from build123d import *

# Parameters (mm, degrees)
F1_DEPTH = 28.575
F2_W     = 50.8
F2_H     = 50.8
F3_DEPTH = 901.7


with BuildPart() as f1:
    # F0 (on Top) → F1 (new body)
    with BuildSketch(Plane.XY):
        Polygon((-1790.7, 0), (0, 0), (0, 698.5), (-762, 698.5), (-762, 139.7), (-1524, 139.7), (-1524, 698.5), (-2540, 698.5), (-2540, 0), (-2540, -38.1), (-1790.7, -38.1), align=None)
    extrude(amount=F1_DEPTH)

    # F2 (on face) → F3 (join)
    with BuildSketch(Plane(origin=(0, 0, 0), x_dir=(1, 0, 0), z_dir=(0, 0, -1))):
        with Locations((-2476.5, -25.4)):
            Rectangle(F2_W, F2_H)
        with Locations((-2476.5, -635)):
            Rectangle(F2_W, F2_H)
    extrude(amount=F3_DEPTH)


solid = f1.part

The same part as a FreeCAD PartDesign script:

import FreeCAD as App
import Part
import Sketcher

V = App.Vector
Q = App.Units.Quantity


def add_polygon(sketch, points):
    """Adds a closed chain of lines whose ends are joined by coincident constraints."""
    first, n = sketch.GeometryCount, len(points)
    for a, b in zip(points, points[1:] + points[:1]):
        sketch.addGeometry(Part.LineSegment(App.Vector(*a, 0), App.Vector(*b, 0)), False)
    for i in range(n):
        sketch.addConstraint(Sketcher.Constraint("Coincident", first + i, 2, first + (i + 1) % n, 1))

doc = App.newDocument("Part")
params = doc.addObject("Spreadsheet::Sheet", "Params")
for row, (alias, value) in enumerate([
    ("sketch1_width", "30 in"),
    ("sketch1_width2", "40 in"),
    ("sketch1_height", "22 in"),
    ("sketch1_height2", "29 in"),
    ("sketch1_width3", "70.5 in"),
    ("pad1_length", "1.125 in"),
    ("sketch2_width", "2 in"),
    ("pad2_length", "35.5 in"),
], start=1):
    params.set(f"A{row}", alias)
    params.set(f"B{row}", "=" + value)
    params.setAlias(f"B{row}", alias)

body = doc.addObject("PartDesign::Body", "Body")

# Sketch on XY plane
sketch1 = body.newObject("Sketcher::SketchObject", "Sketch")
sketch1.AttachmentSupport = (doc.getObject("XY_Plane"), [""])
sketch1.MapMode = "FlatFace"
add_polygon(sketch1, [(-1791, 0), (0, 0), (0, 698), (-762, 698), (-762, 140), (-1524, 140), (-1524, 698), (-2540, 698), (-2540, -38), (-1791, -38)])  # lines 0-9
sketch1.addConstraint([
    Sketcher.Constraint("Horizontal", 0),
    Sketcher.Constraint("Vertical", 1),
    Sketcher.Constraint("Horizontal", 2),
    Sketcher.Constraint("Vertical", 3),
    Sketcher.Constraint("Horizontal", 4),
    Sketcher.Constraint("Vertical", 5),
    Sketcher.Constraint("Horizontal", 6),
    Sketcher.Constraint("Vertical", 7),
    Sketcher.Constraint("Horizontal", 8),
    Sketcher.Constraint("Vertical", 9),
    Sketcher.Constraint("Coincident", 0, 2, -1, 1),
    Sketcher.Constraint("Horizontal", 2, 2, 5, 2),
    Sketcher.Constraint("Equal", 2, 4),
    Sketcher.Constraint("DistanceX", 2, 2, 2, 1, Q("30 in")),
    Sketcher.Constraint("DistanceX", 6, 2, 6, 1, Q("40 in")),
    Sketcher.Constraint("DistanceY", 3, 2, 3, 1, Q("22 in")),
    Sketcher.Constraint("DistanceY", 7, 2, 7, 1, Q("29 in")),
    Sketcher.Constraint("DistanceX", 0, 1, 0, 2, Q("70.5 in")),
    Sketcher.Constraint("DistanceY", 1, 1, 1, 2, Q("27.5 in")),
])
sketch1.setExpression("Constraints[23]", "Params.sketch1_width")
sketch1.setExpression("Constraints[24]", "Params.sketch1_width2")
sketch1.setExpression("Constraints[25]", "Params.sketch1_height")
sketch1.setExpression("Constraints[26]", "Params.sketch1_height2")
sketch1.setExpression("Constraints[27]", "Params.sketch1_width3")
pad1 = body.newObject("PartDesign::Pad", "Pad")
pad1.Profile = sketch1
pad1.setExpression("Length", "Params.pad1_length")

# Sketch on XY plane
sketch2 = body.newObject("Sketcher::SketchObject", "Sketch001")
sketch2.AttachmentSupport = (doc.getObject("XY_Plane"), [""])
sketch2.MapMode = "FlatFace"
add_polygon(sketch2, [(-2502, 0), (-2502, 51), (-2451, 51), (-2451, 0)])  # lines 0-3
add_polygon(sketch2, [(-2502, 610), (-2502, 660), (-2451, 660), (-2451, 610)])  # lines 4-7
sketch2.addConstraint([
    Sketcher.Constraint("Vertical", 0),
    Sketcher.Constraint("Horizontal", 1),
    Sketcher.Constraint("Vertical", 2),
    Sketcher.Constraint("Horizontal", 3),
    Sketcher.Constraint("Vertical", 4),
    Sketcher.Constraint("Horizontal", 5),
    Sketcher.Constraint("Vertical", 6),
    Sketcher.Constraint("Horizontal", 7),
    Sketcher.Constraint("PointOnObject", 2, 2, -1),
    Sketcher.Constraint("Vertical", 3, 2, 4, 2),
    Sketcher.Constraint("Vertical", 2, 2, 5, 2),
    Sketcher.Constraint("Equal", 7, 0),
    Sketcher.Constraint("Equal", 2, 4),
    Sketcher.Constraint("DistanceX", 1, 1, 1, 2, Q("2 in")),
    Sketcher.Constraint("DistanceY", -1, 1, 4, 2, Q("26 in")),
    Sketcher.Constraint("DistanceX", 0, 2, -1, 1, Q("98.5 in")),
])
sketch2.setExpression("Constraints[21]", "Params.sketch2_width")
pad2 = body.newObject("PartDesign::Pad", "Pad001")
pad2.Profile = sketch2
pad2.setExpression("Length", "Params.pad2_length")
pad2.Reversed = True

doc.recompute()
